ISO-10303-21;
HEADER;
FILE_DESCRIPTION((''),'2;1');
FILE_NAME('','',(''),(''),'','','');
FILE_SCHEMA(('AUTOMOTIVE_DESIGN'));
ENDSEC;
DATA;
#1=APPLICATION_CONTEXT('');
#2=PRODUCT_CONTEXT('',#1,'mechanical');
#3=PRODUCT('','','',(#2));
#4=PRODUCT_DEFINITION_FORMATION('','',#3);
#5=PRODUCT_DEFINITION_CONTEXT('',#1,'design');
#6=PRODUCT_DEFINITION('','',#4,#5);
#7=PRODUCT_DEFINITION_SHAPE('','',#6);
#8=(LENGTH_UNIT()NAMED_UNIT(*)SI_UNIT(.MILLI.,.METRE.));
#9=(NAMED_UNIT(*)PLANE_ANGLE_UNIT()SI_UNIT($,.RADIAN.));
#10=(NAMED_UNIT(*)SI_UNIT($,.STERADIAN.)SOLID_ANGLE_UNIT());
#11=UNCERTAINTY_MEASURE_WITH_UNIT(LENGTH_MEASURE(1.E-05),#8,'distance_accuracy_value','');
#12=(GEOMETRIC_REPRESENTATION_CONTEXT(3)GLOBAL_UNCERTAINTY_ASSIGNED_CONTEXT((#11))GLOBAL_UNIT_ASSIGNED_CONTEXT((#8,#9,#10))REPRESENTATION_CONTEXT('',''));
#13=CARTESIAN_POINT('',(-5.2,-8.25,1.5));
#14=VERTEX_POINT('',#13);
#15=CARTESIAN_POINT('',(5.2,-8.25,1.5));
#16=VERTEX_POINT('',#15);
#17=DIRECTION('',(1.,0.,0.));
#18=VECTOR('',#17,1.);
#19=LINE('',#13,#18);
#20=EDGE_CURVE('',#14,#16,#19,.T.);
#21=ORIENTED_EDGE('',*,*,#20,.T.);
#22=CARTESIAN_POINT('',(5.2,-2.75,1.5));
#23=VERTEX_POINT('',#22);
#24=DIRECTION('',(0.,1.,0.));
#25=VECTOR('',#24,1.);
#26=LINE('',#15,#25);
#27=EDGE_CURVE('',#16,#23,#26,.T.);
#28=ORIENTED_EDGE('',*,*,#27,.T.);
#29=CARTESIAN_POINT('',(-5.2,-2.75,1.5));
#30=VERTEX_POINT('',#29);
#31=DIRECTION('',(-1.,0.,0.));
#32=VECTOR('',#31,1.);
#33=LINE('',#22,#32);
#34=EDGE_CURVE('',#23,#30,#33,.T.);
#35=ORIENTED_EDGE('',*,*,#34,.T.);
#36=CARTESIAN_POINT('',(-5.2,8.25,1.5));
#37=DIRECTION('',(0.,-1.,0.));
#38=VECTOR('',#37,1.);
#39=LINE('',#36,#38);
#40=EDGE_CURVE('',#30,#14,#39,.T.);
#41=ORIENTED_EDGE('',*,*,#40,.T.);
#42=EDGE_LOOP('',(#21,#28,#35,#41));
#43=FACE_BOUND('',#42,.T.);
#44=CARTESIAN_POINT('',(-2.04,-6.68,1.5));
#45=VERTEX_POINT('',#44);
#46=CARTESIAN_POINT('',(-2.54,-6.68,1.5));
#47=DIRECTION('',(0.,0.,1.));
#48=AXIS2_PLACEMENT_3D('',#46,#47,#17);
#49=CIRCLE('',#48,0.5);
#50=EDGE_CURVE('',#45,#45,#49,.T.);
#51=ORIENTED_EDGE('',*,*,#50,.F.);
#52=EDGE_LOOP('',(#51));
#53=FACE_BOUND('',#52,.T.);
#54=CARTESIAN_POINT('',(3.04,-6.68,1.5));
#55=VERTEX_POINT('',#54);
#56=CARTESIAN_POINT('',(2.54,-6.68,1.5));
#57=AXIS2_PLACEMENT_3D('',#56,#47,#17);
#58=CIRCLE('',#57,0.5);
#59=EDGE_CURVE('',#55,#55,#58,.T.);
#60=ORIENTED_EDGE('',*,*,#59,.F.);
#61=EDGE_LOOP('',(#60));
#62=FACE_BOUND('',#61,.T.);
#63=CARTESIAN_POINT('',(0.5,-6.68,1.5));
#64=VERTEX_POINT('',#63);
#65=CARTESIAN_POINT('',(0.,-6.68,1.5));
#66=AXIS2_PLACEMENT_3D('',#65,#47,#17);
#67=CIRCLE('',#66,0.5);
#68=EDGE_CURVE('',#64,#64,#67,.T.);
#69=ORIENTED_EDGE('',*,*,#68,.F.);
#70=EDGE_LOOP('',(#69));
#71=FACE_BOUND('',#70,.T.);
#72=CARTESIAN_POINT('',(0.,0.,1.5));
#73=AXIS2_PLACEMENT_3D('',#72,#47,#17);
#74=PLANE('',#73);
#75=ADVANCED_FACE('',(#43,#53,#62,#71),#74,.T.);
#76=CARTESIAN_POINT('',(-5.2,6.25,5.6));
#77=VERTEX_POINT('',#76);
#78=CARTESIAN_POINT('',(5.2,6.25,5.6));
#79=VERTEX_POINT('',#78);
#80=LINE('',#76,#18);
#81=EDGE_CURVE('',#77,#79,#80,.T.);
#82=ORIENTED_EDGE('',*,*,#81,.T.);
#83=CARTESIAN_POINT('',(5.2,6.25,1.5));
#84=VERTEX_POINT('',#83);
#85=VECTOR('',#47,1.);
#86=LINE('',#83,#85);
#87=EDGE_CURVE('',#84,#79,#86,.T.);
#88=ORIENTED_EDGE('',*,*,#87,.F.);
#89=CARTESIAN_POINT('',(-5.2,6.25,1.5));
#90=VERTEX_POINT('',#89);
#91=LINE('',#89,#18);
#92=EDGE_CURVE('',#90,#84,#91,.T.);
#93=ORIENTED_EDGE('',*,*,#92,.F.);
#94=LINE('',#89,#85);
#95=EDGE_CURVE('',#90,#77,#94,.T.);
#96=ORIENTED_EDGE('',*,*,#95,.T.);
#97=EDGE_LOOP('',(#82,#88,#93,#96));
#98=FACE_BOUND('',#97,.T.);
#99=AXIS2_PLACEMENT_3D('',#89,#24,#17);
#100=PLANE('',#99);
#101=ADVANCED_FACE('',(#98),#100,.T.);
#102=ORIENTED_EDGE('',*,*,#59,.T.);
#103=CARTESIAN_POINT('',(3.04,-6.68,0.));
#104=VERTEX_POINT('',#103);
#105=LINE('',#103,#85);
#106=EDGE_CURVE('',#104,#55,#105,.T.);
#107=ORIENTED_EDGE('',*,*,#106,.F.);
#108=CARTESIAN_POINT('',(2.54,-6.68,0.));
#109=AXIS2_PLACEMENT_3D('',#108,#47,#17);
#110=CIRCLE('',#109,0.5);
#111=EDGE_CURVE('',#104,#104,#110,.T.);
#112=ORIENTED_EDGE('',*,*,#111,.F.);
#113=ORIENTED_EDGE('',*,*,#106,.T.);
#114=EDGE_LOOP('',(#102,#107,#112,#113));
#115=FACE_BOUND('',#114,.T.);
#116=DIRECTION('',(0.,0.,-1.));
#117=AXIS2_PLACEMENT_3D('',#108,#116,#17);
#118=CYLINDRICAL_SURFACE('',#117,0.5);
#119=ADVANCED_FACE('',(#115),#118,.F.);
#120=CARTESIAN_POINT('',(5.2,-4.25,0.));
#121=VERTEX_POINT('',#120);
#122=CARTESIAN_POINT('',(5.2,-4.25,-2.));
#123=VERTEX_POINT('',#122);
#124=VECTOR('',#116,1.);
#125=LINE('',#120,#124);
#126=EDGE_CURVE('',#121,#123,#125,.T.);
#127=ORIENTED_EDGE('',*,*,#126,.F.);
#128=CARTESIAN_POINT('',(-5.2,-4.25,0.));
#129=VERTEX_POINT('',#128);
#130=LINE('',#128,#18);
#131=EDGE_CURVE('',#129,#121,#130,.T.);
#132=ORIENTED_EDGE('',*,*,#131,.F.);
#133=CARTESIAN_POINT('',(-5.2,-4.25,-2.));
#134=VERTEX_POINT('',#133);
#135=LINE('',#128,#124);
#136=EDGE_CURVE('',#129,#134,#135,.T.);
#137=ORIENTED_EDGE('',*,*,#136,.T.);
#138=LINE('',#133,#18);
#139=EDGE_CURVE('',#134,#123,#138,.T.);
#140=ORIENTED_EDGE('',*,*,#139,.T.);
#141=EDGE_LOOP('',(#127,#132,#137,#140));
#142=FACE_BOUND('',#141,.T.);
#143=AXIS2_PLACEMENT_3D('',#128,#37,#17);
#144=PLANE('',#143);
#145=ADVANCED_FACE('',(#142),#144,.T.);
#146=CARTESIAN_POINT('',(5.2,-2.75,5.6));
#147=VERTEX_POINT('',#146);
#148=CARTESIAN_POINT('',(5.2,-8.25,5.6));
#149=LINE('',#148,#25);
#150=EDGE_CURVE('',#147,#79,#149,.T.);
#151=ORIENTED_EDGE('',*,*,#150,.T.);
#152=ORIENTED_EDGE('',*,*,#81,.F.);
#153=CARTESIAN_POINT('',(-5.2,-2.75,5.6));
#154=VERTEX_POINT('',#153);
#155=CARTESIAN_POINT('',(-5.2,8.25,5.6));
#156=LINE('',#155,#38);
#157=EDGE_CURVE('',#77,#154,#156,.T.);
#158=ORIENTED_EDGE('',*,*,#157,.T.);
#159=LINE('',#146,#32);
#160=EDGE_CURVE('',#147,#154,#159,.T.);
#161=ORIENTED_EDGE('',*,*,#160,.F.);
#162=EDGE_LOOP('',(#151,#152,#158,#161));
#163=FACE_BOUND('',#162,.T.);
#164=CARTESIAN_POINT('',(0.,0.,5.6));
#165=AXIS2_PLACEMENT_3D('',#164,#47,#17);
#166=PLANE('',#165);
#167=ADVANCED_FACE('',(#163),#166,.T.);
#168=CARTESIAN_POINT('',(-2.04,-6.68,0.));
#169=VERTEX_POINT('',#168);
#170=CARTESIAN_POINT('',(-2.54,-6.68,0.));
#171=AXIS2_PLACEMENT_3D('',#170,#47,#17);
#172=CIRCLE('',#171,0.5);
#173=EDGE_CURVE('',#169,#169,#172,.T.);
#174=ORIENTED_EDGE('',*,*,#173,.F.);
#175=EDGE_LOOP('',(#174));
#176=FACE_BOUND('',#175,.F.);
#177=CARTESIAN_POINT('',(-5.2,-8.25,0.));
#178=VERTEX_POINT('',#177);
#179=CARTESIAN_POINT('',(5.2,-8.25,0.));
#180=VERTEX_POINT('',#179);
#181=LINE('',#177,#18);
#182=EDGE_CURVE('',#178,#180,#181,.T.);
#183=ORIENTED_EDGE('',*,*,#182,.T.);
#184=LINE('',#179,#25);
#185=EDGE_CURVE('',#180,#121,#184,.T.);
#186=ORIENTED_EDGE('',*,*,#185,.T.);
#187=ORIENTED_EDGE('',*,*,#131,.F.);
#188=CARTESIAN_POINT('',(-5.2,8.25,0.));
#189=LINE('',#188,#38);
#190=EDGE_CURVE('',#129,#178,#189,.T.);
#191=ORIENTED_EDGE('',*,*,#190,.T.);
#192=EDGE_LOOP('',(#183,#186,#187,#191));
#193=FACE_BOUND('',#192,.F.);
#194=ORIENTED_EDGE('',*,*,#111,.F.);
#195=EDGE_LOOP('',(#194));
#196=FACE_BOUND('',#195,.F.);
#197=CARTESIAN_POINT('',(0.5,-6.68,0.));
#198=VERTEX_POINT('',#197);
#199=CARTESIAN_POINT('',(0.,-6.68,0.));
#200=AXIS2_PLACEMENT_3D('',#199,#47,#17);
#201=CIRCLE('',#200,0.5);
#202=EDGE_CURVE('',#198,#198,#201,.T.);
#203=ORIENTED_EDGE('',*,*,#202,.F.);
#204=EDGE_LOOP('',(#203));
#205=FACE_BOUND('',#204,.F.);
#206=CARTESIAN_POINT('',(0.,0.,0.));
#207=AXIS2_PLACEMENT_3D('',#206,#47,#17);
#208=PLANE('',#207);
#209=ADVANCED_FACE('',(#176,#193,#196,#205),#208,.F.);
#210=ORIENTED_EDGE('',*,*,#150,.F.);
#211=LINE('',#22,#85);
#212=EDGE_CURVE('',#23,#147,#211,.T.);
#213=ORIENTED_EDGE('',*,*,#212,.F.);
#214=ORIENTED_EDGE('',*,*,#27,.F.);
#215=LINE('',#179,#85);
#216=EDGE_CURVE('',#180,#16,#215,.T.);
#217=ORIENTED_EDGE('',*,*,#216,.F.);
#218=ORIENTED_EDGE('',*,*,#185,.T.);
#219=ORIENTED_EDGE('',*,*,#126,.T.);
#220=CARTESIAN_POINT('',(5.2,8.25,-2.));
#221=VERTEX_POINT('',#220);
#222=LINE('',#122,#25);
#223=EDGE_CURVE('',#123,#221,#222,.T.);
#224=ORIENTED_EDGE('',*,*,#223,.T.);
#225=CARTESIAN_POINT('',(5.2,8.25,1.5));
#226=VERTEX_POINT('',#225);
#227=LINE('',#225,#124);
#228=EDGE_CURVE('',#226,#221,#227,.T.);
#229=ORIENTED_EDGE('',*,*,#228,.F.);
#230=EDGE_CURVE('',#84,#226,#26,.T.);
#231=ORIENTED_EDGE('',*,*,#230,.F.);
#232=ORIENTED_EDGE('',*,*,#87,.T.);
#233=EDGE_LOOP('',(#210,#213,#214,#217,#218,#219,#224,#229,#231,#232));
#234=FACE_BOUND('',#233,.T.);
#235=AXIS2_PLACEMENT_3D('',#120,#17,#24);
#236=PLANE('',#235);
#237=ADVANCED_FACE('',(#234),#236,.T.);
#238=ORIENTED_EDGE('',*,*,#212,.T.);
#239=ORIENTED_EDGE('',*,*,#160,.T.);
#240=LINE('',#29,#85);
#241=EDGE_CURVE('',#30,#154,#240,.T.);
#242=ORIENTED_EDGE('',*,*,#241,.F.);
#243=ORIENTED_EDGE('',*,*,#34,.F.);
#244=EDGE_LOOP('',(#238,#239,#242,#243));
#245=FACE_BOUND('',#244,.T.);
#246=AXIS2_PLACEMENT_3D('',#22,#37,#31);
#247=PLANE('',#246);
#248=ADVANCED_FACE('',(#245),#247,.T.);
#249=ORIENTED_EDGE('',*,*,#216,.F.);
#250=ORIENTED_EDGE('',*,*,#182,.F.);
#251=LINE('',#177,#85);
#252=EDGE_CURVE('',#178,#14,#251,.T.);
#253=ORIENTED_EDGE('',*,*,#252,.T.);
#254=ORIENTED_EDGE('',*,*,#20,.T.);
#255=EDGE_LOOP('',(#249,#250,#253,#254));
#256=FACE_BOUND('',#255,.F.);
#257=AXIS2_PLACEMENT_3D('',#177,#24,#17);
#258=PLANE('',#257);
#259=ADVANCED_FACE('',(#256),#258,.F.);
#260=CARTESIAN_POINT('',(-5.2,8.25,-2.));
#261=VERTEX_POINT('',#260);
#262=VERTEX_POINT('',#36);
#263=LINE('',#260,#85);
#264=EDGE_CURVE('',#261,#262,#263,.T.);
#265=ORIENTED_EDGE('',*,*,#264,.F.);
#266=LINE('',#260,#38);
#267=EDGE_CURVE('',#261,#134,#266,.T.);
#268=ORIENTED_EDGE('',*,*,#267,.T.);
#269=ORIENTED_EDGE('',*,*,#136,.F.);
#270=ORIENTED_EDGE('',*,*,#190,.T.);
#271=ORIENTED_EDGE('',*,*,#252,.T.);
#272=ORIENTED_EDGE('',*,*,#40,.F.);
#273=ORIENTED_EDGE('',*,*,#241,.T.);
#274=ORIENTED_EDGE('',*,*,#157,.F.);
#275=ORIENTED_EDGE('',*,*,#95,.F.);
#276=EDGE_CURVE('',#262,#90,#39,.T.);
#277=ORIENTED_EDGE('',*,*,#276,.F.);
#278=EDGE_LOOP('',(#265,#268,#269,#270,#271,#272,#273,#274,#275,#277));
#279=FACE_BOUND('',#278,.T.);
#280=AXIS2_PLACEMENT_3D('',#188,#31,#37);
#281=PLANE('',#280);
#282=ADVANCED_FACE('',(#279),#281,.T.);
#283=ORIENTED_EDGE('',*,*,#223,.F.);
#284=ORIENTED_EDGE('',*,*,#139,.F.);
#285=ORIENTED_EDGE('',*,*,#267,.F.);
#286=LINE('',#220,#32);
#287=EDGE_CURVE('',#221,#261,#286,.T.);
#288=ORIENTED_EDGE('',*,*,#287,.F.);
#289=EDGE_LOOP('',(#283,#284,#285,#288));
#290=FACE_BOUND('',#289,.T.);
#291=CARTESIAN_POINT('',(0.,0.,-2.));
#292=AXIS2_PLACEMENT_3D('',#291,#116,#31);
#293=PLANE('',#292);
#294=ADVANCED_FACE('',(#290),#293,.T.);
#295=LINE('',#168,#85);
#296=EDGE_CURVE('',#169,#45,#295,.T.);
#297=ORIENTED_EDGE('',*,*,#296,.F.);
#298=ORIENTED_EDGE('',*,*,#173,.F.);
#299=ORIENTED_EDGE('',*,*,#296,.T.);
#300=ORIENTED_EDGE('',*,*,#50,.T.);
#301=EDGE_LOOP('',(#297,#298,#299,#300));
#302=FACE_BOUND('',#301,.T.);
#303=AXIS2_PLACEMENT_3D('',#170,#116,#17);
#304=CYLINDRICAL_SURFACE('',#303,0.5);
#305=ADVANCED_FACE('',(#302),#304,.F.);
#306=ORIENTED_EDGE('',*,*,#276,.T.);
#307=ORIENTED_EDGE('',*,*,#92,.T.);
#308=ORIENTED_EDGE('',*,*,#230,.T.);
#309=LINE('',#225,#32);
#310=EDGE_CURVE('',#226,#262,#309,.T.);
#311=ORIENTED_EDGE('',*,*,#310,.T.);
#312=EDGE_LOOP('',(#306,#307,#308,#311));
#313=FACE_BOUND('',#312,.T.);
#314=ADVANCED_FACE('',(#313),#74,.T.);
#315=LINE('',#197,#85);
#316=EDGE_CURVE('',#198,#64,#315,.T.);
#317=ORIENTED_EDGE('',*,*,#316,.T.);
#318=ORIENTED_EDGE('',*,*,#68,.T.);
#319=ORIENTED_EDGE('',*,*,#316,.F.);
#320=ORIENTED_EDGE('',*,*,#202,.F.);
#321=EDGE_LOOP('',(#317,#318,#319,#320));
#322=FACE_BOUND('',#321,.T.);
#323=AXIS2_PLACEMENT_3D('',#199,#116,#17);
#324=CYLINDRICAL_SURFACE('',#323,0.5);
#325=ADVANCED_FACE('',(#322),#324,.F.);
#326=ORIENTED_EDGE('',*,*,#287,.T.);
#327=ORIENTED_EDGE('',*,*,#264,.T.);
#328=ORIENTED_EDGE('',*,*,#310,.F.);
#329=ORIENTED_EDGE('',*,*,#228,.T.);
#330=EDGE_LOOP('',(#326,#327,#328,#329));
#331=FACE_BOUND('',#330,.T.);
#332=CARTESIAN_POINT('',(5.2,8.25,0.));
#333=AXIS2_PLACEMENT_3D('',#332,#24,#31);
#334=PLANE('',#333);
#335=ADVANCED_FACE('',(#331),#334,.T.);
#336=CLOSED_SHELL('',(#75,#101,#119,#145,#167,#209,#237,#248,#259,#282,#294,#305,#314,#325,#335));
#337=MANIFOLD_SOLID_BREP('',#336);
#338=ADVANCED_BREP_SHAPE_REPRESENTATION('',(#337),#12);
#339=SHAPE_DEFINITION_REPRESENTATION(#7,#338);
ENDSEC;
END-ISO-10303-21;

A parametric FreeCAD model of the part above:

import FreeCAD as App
import Part
import Sketcher
from FreeCAD import Vector
Q = App.Units.Quantity

doc = App.newDocument("Part")
body = doc.addObject("PartDesign::Body", "Body")

# Sketch on XY plane
sketch1 = body.newObject("Sketcher::SketchObject", "Sketch")
sketch1.AttachmentSupport = (doc.getObject("XY_Plane"), [""])
sketch1.MapMode = "FlatFace"
sketch1.addGeometry([
    Part.LineSegment(Vector(-5.2, 8.2, 0), Vector(-5.2, -8.2, 0)),  # 0
    Part.LineSegment(Vector(-5.2, -8.2, 0), Vector(5.2, -8.2, 0)),  # 1
    Part.LineSegment(Vector(5.2, -8.2, 0), Vector(5.2, 8.2, 0)),  # 2
    Part.LineSegment(Vector(5.2, 8.2, 0), Vector(-5.2, 8.2, 0)),  # 3
    Part.Circle(Vector(-2.5, -6.7, 0), Vector(0, 0, 1), 0.5),  # 4
    Part.Circle(Vector(0, -6.7, 0), Vector(0, 0, 1), 0.5),  # 5
    Part.Circle(Vector(2.5, -6.7, 0), Vector(0, 0, 1), 0.5),  # 6
], False)
sketch1.addConstraint([
    Sketcher.Constraint("Coincident", 0, 2, 1, 1),
    Sketcher.Constraint("Coincident", 1, 2, 2, 1),
    Sketcher.Constraint("Coincident", 2, 2, 3, 1),
    Sketcher.Constraint("Coincident", 3, 2, 0, 1),
    Sketcher.Constraint("Vertical", 0),
    Sketcher.Constraint("Horizontal", 1),
    Sketcher.Constraint("Vertical", 2),
    Sketcher.Constraint("Horizontal", 3),
    Sketcher.Constraint("Equal", 4, 5),
    Sketcher.Constraint("Equal", 5, 6),
    Sketcher.Constraint("Symmetric", 0, 2, 2, 2, -1, 1),
    Sketcher.Constraint("Symmetric", 4, 3, 6, 3, -2),
    Sketcher.Constraint("PointOnObject", 5, 3, -2),
    Sketcher.Constraint("Horizontal", 4, 3, 5, 3),
    Sketcher.Constraint("Diameter", 4, Q("1 mm")),
    Sketcher.Constraint("DistanceX", 1, 1, 1, 2, Q("10.4 mm")),
    Sketcher.Constraint("DistanceY", 0, 2, 0, 1, Q("16.5 mm")),
    Sketcher.Constraint("DistanceX", 4, 3, -1, 1, Q("2.54 mm")),
    Sketcher.Constraint("DistanceY", 0, 2, 4, 3, Q("1.57 mm")),
])
pad1 = body.newObject("PartDesign::Pad", "Pad")
pad1.Profile = sketch1
pad1.Length = 1.5

# Sketch on XY plane
sketch2 = body.newObject("Sketcher::SketchObject", "Sketch001")
sketch2.AttachmentSupport = (doc.getObject("XY_Plane"), [""])
sketch2.MapMode = "FlatFace"
sketch2.AttachmentOffset = App.Placement(Vector(0, 0, 1.5), App.Rotation())
sketch2.addGeometry([
    Part.LineSegment(Vector(5, 6, 0), Vector(-5, 6, 0)),
    Part.LineSegment(Vector(-5, 6, 0), Vector(-5, -3, 0)),
    Part.LineSegment(Vector(-5, -3, 0), Vector(5, -3, 0)),
    Part.LineSegment(Vector(5, -3, 0), Vector(5, 6, 0)),
], False)
sketch2.addConstraint([
    Sketcher.Constraint("Coincident", 0, 2, 1, 1),
    Sketcher.Constraint("Coincident", 1, 2, 2, 1),
    Sketcher.Constraint("Coincident", 2, 2, 3, 1),
    Sketcher.Constraint("Coincident", 3, 2, 0, 1),
    Sketcher.Constraint("Horizontal", 0),
    Sketcher.Constraint("Vertical", 1),
    Sketcher.Constraint("Horizontal", 2),
    Sketcher.Constraint("Vertical", 3),
    Sketcher.Constraint("DistanceY", 1, 2, 1, 1, Q("9 mm")),
    Sketcher.Constraint("DistanceX", 0, 2, 0, 1, Q("10.4 mm")),
    Sketcher.Constraint("DistanceX", 0, 2, -1, 1, Q("5.2 mm")),
    Sketcher.Constraint("DistanceY", -1, 1, 0, 2, Q("6.25 mm")),
])
pad2 = body.newObject("PartDesign::Pad", "Pad001")
pad2.Profile = sketch2
pad2.Length = 4.1

# Sketch on XY plane
sketch3 = body.newObject("Sketcher::SketchObject", "Sketch002")
sketch3.AttachmentSupport = (doc.getObject("XY_Plane"), [""])
sketch3.MapMode = "FlatFace"
sketch3.addGeometry([
    Part.LineSegment(Vector(-5, 8, 0), Vector(5, 8, 0)),
    Part.LineSegment(Vector(5, 8, 0), Vector(5, -4, 0)),
    Part.LineSegment(Vector(5, -4, 0), Vector(-5, -4, 0)),
    Part.LineSegment(Vector(-5, -4, 0), Vector(-5, 8, 0)),
], False)
sketch3.addConstraint([
    Sketcher.Constraint("Coincident", 0, 2, 1, 1),
    Sketcher.Constraint("Coincident", 1, 2, 2, 1),
    Sketcher.Constraint("Coincident", 2, 2, 3, 1),
    Sketcher.Constraint("Coincident", 3, 2, 0, 1),
    Sketcher.Constraint("Horizontal", 0),
    Sketcher.Constraint("Vertical", 1),
    Sketcher.Constraint("Horizontal", 2),
    Sketcher.Constraint("Vertical", 3),
    Sketcher.Constraint("DistanceX", 0, 1, 0, 2, Q("10.4 mm")),
    Sketcher.Constraint("DistanceY", 1, 2, 1, 1, Q("12.5 mm")),
    Sketcher.Constraint("DistanceX", -1, 1, 0, 2, Q("5.2 mm")),
    Sketcher.Constraint("DistanceY", -1, 1, 0, 2, Q("8.25 mm")),
])
pad3 = body.newObject("PartDesign::Pad", "Pad002")
pad3.Profile = sketch3
pad3.Length = 2
pad3.Reversed = True

doc.recompute()
